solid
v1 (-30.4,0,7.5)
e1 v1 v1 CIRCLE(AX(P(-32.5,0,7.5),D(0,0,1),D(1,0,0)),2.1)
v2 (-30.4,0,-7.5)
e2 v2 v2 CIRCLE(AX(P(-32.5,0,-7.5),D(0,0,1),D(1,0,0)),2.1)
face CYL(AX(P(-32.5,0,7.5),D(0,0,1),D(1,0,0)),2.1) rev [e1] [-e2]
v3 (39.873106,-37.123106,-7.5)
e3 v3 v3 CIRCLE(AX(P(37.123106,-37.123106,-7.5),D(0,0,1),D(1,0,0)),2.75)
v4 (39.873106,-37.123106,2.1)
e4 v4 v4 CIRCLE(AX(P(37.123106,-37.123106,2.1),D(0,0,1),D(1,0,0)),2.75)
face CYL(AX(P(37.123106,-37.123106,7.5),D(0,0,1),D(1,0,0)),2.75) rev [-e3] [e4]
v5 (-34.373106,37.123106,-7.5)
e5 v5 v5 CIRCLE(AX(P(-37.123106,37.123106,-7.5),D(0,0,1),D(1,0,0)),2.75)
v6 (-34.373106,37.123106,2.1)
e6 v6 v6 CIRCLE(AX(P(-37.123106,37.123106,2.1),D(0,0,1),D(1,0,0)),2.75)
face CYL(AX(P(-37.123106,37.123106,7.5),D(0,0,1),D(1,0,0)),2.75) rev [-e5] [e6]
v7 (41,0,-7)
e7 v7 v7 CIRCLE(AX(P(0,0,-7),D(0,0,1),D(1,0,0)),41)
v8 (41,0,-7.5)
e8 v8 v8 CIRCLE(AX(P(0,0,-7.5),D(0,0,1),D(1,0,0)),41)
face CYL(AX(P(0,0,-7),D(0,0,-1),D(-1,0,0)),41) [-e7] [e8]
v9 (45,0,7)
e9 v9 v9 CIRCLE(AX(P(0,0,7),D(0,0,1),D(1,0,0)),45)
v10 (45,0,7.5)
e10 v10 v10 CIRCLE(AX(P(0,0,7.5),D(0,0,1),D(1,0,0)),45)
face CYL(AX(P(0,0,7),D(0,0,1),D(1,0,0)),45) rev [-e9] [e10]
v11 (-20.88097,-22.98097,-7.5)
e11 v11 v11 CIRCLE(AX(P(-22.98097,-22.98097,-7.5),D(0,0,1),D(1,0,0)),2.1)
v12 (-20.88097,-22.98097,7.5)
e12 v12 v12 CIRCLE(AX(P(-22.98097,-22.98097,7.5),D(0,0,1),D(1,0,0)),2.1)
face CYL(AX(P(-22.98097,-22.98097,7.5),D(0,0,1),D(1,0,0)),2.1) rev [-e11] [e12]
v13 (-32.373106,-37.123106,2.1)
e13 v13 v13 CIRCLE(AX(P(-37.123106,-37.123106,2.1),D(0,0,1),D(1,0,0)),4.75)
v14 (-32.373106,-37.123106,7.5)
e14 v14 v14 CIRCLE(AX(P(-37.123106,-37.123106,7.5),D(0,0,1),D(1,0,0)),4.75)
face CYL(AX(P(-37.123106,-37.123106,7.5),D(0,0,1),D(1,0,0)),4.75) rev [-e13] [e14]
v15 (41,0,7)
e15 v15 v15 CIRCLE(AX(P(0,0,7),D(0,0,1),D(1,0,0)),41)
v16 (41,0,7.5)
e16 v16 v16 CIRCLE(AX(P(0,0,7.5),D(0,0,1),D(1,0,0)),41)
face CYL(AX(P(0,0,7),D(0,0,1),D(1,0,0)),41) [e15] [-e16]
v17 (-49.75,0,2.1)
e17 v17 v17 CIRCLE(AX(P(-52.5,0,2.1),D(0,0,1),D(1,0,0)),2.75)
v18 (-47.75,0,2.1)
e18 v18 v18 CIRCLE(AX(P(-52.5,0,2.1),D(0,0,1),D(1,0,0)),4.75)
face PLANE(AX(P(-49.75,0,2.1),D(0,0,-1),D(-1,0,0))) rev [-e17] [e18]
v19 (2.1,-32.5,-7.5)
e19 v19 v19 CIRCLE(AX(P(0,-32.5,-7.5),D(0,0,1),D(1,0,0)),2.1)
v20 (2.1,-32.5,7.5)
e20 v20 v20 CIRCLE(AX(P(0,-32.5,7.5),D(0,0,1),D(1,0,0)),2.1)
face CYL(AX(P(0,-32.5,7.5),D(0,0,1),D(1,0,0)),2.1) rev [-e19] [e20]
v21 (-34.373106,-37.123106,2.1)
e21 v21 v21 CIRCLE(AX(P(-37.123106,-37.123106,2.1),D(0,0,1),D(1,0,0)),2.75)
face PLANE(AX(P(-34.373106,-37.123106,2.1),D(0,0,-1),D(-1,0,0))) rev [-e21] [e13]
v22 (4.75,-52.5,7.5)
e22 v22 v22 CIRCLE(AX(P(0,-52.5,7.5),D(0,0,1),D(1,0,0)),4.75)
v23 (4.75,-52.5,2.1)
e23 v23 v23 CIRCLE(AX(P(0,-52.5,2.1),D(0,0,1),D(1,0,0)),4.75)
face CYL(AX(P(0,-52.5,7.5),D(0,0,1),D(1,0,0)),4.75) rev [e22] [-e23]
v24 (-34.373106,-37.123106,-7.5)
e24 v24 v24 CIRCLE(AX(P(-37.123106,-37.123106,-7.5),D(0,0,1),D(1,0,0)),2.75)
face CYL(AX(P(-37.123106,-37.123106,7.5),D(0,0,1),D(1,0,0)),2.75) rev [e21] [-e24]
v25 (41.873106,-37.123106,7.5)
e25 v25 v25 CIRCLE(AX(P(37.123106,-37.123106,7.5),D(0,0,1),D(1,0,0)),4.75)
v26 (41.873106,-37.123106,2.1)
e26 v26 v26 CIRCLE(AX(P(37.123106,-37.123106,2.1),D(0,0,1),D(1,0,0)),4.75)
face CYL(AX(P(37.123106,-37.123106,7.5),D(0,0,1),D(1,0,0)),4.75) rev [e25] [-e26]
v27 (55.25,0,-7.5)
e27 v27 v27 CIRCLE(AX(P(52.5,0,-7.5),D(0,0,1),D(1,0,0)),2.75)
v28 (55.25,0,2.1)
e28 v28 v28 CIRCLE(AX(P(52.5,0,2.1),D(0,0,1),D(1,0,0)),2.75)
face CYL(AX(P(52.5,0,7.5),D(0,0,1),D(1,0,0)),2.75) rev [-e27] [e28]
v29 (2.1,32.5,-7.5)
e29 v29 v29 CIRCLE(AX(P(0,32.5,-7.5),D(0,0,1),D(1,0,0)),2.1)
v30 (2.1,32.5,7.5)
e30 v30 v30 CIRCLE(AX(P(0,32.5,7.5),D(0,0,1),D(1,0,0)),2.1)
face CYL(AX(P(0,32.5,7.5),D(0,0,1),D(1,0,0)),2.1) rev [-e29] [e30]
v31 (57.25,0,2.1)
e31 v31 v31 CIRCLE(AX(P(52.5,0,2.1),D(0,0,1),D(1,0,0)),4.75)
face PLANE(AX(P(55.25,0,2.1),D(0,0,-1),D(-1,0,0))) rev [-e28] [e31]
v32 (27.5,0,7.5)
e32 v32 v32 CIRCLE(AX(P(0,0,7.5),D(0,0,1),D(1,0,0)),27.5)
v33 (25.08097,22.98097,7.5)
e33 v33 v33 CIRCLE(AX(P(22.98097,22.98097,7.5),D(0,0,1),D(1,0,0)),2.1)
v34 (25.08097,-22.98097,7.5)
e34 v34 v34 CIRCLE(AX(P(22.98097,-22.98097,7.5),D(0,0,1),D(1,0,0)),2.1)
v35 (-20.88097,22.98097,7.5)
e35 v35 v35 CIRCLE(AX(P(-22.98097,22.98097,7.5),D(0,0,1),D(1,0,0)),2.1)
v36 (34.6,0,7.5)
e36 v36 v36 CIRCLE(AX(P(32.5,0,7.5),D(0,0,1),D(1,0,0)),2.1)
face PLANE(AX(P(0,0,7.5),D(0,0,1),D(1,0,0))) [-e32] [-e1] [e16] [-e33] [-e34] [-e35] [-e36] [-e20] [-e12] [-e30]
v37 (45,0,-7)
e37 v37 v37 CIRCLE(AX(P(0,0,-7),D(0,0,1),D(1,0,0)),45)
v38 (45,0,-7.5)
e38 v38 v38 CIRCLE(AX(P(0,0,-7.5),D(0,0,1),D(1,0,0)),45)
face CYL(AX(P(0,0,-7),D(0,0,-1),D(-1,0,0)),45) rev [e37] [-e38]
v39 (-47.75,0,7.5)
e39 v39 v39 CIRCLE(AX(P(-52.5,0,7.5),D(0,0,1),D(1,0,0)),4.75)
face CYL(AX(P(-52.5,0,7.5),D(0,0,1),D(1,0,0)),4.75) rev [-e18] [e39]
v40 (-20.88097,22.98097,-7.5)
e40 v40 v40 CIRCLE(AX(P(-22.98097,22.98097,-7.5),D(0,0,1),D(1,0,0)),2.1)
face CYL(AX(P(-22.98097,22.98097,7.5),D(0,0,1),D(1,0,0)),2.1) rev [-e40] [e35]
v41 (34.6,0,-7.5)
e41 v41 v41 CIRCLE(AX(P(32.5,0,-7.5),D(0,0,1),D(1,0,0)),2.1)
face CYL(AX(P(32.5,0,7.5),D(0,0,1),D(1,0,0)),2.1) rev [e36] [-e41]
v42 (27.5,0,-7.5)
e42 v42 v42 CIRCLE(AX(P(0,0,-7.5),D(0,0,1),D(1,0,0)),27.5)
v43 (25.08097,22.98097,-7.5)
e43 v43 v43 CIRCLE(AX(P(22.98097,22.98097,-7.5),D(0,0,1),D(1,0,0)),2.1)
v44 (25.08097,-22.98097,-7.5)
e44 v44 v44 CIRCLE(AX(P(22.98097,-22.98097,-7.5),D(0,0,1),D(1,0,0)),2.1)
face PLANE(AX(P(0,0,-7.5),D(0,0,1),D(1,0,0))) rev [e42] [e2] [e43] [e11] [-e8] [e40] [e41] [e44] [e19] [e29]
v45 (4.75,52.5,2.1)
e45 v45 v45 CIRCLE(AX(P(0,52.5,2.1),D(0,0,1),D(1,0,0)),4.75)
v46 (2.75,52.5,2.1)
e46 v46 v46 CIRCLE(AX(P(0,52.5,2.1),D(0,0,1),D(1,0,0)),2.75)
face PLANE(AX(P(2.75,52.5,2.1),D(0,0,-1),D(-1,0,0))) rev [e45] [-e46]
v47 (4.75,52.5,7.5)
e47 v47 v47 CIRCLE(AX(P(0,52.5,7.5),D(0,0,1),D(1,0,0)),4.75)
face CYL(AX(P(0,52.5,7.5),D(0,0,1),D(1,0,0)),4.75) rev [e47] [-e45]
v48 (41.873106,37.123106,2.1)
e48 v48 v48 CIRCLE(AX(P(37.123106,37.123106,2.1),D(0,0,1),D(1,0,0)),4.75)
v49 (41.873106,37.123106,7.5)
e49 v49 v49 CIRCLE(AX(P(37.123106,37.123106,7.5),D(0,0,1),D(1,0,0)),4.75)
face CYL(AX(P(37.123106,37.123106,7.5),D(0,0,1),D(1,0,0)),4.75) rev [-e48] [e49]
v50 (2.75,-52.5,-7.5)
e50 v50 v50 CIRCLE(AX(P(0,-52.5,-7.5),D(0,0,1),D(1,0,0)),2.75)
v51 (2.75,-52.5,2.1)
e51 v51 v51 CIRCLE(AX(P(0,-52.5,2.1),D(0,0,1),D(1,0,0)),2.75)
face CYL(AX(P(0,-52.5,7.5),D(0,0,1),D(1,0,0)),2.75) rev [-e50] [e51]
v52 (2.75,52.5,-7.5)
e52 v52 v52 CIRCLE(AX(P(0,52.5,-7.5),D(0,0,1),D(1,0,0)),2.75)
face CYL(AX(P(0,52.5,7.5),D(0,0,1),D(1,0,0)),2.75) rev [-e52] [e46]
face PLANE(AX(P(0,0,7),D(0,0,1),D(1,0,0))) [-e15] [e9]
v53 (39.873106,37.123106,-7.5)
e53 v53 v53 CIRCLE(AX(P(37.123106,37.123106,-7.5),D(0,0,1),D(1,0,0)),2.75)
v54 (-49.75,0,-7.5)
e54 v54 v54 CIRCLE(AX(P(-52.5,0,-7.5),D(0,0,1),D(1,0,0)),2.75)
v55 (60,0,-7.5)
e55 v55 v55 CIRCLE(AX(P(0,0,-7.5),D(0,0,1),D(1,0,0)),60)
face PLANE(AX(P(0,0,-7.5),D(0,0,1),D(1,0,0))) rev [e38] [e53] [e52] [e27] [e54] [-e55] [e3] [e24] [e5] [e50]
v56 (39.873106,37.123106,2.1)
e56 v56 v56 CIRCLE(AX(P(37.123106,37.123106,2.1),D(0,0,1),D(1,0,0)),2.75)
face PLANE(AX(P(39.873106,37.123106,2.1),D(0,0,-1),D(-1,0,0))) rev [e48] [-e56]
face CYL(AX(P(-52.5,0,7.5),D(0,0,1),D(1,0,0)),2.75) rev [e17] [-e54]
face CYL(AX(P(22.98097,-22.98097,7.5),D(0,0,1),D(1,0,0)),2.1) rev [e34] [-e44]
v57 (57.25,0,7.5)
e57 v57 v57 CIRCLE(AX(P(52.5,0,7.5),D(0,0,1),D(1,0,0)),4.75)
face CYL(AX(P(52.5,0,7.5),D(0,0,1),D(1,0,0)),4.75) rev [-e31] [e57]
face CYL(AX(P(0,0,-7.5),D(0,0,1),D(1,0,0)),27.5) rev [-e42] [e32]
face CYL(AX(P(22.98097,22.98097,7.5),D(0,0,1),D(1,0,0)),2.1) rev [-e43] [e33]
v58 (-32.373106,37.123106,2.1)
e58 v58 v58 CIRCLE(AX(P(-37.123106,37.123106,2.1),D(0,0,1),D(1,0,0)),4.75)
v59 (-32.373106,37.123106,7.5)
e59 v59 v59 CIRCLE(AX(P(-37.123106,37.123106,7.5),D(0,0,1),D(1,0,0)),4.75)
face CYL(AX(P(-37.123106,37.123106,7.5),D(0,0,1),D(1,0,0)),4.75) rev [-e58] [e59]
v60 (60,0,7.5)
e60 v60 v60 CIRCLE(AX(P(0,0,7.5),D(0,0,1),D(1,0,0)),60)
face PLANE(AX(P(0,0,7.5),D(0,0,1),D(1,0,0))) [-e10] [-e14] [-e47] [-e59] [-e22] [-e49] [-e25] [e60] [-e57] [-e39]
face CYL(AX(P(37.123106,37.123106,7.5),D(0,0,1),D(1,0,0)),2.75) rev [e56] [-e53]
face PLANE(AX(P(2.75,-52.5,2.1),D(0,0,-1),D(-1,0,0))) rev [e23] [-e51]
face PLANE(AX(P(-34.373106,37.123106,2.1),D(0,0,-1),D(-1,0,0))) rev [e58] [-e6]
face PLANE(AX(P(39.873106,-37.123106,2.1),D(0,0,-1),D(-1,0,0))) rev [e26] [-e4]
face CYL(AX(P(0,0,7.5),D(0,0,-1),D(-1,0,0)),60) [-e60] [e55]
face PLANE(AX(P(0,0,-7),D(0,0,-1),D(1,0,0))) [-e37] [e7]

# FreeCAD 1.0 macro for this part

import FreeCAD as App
import Part
import Sketcher
Q = App.Units.Quantity

doc = App.newDocument("Part")
params = doc.addObject("Spreadsheet::Sheet", "Params")
for row, (alias, value) in enumerate([
    ("sketch1_diameter", "120 mm"),
    ("pad1_length", "15 mm"),
    ("sketch2_diameter", "55 mm"),
    ("sketch3_diameter", "90 mm"),
    ("sketch3_diameter2", "82 mm"),
    ("pocket2_length", "0.5 mm"),
    ("sketch4_diameter", "5.5 mm"),
    ("hole_diameter", "5.5 mm"),
    ("hole_cbore_diameter", "9.5 mm"),
    ("hole_cbore_depth", "5.4 mm"),
    ("sketch5_diameter", "4.2 mm"),
    ("hole2_diameter", "4.2 mm"),
], start=1):
    params.set(f"A{row}", alias)
    params.set(f"B{row}", "=" + value)
    params.setAlias(f"B{row}", alias)

body = doc.addObject("PartDesign::Body", "Body")

sketch1 = body.newObject("Sketcher::SketchObject", "Sketch")
sketch1.AttachmentSupport = (doc.getObject("XY_Plane"), [""])
sketch1.MapMode = "FlatFace"
sketch1.addGeometry(Part.Circle(App.Vector(0, 0, 0), App.Vector(0, 0, 1), 60), False)
sketch1.addConstraint([
    Sketcher.Constraint("Coincident", 0, 3, -1, 1),
    Sketcher.Constraint("Diameter", 0, Q("120 mm")),
])
sketch1.setExpression("Constraints[1]", "Params.sketch1_diameter")
pad1 = body.newObject("PartDesign::Pad", "Pad")
pad1.Profile = sketch1
pad1.setExpression("Length", "Params.pad1_length")
pad1.Midplane = True

sketch2 = body.newObject("Sketcher::SketchObject", "Sketch001")
sketch2.AttachmentSupport = (doc.getObject("XY_Plane"), [""])
sketch2.MapMode = "FlatFace"
sketch2.AttachmentOffset = App.Placement(App.Vector(0, 0, 7.5), App.Rotation())
sketch2.addGeometry(Part.Circle(App.Vector(0, 0, 0), App.Vector(0, 0, 1), 28), False)
sketch2.addConstraint([
    Sketcher.Constraint("Coincident", 0, 3, -1, 1),
    Sketcher.Constraint("Diameter", 0, Q("55 mm")),
])
sketch2.setExpression("Constraints[1]", "Params.sketch2_diameter")
pocket1 = body.newObject("PartDesign::Pocket", "Pocket")
pocket1.Profile = sketch2
pocket1.Type = "ThroughAll"

sketch3 = body.newObject("Sketcher::SketchObject", "Sketch002")
sketch3.AttachmentSupport = (doc.getObject("XY_Plane"), [""])
sketch3.MapMode = "FlatFace"
sketch3.AttachmentOffset = App.Placement(App.Vector(0, 0, 7.5), App.Rotation())
sketch3.addGeometry([
    Part.Circle(App.Vector(0, 0, 0), App.Vector(0, 0, 1), 45),
    Part.Circle(App.Vector(0, 0, 0), App.Vector(0, 0, 1), 41),
], False)
sketch3.addConstraint([
    Sketcher.Constraint("Coincident", 0, 3, -1, 1),
    Sketcher.Constraint("Coincident", 1, 3, -1, 1),
    Sketcher.Constraint("Diameter", 0, Q("90 mm")),
    Sketcher.Constraint("Diameter", 1, Q("82 mm")),
])
sketch3.setExpression("Constraints[2]", "Params.sketch3_diameter")
sketch3.setExpression("Constraints[3]", "Params.sketch3_diameter2")
pocket2 = body.newObject("PartDesign::Pocket", "Pocket001")
pocket2.Profile = sketch3
pocket2.setExpression("Length", "Params.pocket2_length")
doc.recompute()

mirrored = body.newObject("PartDesign::Mirrored", "Mirrored")
mirrored.Originals = [pocket2]
mirrored.MirrorPlane = (doc.getObject("XY_Plane"), [""])
body.Tip = mirrored

sketch4 = body.newObject("Sketcher::SketchObject", "Sketch003")
sketch4.AttachmentSupport = (doc.getObject("XY_Plane"), [""])
sketch4.MapMode = "FlatFace"
sketch4.AttachmentOffset = App.Placement(App.Vector(0, 0, 7.5), App.Rotation())
sketch4.addGeometry(Part.Circle(App.Vector(0, 52.5, 0), App.Vector(0, 0, 1), 2.8), False)
sketch4.addConstraint([
    Sketcher.Constraint("PointOnObject", 0, 3, -2),
    Sketcher.Constraint("Diameter", 0, Q("5.5 mm")),
    Sketcher.Constraint("DistanceY", -1, 1, 0, 3, Q("52.5 mm")),
])
sketch4.setExpression("Constraints[1]", "Params.sketch4_diameter")
doc.recompute()
hole = body.newObject("PartDesign::Hole", "Hole")
hole.Profile = sketch4
hole.ThreadType = "None"
hole.setExpression("Diameter", "Params.hole_diameter")
hole.DepthType = "ThroughAll"
hole.HoleCutType = "Counterbore"
hole.setExpression("HoleCutDiameter", "Params.hole_cbore_diameter")
hole.setExpression("HoleCutDepth", "Params.hole_cbore_depth")

sketch5 = body.newObject("Sketcher::SketchObject", "Sketch004")
sketch5.AttachmentSupport = (doc.getObject("XY_Plane"), [""])
sketch5.MapMode = "FlatFace"
sketch5.AttachmentOffset = App.Placement(App.Vector(0, 0, 7.5), App.Rotation())
sketch5.addGeometry(Part.Circle(App.Vector(0, 32.5, 0), App.Vector(0, 0, 1), 2.1), False)
sketch5.addConstraint([
    Sketcher.Constraint("PointOnObject", 0, 3, -2),
    Sketcher.Constraint("Diameter", 0, Q("4.2 mm")),
    Sketcher.Constraint("DistanceY", -1, 1, 0, 3, Q("32.5 mm")),
])
sketch5.setExpression("Constraints[1]", "Params.sketch5_diameter")
doc.recompute()
hole2 = body.newObject("PartDesign::Hole", "Hole001")
hole2.Profile = sketch5
hole2.ThreadType = "None"
hole2.setExpression("Diameter", "Params.hole2_diameter")
hole2.DepthType = "ThroughAll"
doc.recompute()

polarpattern = body.newObject("PartDesign::PolarPattern", "PolarPattern")
polarpattern.Originals = [hole, hole2]
polarpattern.Axis = (doc.getObject("Z_Axis"), [""])
polarpattern.Angle = 360
polarpattern.Occurrences = 8
body.Tip = polarpattern

doc.recompute()
